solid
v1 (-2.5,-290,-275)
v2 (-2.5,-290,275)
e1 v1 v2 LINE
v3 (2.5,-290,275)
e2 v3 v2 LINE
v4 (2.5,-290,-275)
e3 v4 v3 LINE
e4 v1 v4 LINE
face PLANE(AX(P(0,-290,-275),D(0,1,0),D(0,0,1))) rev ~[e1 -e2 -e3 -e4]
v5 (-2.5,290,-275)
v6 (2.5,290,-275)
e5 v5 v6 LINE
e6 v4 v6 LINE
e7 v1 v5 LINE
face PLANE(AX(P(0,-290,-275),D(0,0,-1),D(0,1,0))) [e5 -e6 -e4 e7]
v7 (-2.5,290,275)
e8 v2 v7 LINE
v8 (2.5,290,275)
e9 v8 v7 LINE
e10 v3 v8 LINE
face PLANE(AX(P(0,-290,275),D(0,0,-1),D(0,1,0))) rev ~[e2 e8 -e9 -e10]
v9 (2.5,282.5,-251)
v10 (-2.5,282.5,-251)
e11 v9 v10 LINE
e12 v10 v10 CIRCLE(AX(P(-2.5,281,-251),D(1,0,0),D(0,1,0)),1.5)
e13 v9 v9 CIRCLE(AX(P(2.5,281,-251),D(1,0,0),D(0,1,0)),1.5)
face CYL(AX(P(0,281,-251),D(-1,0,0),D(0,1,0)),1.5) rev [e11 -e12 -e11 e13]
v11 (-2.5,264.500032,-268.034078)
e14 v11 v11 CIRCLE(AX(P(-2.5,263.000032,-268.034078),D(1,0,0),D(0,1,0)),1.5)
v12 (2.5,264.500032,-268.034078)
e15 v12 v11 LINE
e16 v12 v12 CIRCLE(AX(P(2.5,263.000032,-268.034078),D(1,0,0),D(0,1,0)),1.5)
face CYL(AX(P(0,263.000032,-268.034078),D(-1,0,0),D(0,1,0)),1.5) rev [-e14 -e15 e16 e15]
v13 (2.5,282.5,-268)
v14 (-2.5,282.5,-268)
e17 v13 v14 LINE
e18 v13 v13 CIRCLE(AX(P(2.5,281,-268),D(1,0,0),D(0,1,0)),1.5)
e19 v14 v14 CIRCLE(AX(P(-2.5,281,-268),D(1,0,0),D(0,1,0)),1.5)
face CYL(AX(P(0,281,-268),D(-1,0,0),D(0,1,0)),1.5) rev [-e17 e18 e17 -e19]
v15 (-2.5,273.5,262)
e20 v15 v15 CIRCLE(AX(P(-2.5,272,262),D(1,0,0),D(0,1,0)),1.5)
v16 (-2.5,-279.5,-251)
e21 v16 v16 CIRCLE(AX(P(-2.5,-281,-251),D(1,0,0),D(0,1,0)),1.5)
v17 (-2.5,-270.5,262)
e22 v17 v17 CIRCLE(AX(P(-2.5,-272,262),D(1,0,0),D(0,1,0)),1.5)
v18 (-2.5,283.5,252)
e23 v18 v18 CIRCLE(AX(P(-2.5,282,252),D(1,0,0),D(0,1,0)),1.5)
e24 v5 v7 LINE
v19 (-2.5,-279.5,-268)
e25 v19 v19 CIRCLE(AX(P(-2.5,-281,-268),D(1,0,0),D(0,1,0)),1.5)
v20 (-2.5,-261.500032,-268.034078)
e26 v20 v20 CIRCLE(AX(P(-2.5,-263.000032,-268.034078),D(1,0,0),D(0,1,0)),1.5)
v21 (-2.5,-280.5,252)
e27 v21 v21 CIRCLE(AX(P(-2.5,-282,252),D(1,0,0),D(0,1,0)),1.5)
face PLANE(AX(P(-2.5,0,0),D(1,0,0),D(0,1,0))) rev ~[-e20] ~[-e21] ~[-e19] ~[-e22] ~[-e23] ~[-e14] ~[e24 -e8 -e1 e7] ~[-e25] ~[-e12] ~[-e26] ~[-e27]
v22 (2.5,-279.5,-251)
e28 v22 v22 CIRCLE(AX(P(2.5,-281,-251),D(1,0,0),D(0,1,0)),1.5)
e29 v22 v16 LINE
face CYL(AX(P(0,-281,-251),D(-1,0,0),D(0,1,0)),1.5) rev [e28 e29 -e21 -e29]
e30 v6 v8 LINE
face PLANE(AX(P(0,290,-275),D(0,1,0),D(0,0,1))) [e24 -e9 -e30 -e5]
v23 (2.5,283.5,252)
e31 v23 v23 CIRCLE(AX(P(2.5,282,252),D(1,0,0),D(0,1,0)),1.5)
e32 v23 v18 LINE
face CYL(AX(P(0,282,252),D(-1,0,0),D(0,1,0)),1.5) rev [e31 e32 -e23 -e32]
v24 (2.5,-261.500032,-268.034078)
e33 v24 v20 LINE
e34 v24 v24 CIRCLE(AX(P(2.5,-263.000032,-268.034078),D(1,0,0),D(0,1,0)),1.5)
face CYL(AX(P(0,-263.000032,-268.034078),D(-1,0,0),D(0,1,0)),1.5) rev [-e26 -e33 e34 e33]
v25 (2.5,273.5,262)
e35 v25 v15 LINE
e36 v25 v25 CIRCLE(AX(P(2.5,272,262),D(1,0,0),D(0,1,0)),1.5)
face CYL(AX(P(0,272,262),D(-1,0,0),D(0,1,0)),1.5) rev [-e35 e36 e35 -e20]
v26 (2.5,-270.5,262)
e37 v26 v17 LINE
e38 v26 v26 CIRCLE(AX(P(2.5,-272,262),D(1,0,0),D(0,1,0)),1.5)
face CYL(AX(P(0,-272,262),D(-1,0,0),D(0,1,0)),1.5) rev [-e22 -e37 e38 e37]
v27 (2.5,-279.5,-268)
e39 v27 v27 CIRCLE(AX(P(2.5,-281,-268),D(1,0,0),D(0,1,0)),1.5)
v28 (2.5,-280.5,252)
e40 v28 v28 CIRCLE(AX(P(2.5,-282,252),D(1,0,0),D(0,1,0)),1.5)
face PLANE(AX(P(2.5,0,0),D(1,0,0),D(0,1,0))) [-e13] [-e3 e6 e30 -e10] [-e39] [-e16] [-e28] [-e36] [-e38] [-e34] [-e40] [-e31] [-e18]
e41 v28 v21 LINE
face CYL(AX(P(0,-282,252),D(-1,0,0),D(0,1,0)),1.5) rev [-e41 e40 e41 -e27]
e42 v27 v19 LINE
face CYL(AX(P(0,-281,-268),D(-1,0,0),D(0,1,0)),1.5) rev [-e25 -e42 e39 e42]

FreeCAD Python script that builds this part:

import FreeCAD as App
import Part
import Sketcher

V = App.Vector


def add_polygon(sketch, points):
    """Adds a closed chain of lines whose ends are joined by coincident constraints."""
    first, n = sketch.GeometryCount, len(points)
    for a, b in zip(points, points[1:] + points[:1]):
        sketch.addGeometry(Part.LineSegment(App.Vector(*a, 0), App.Vector(*b, 0)), False)
    for i in range(n):
        sketch.addConstraint(Sketcher.Constraint("Coincident", first + i, 2, first + (i + 1) % n, 1))

doc = App.newDocument("Part")
body = doc.addObject("PartDesign::Body", "Body")

sketch1 = body.newObject("Sketcher::SketchObject", "Sketch")
sketch1.AttachmentSupport = (doc.getObject("YZ_Plane"), [""])
sketch1.MapMode = "FlatFace"
add_polygon(sketch1, [(-290, 275), (-290, -275), (290, -275), (290, 275)])
sketch1.addGeometry(Part.Circle(V(-281, -268, 0), V(0, 0, 1), 1.5), False)
sketch1.addGeometry(Part.Circle(V(-263, -268, 0), V(0, 0, 1), 1.5), False)
sketch1.addGeometry(Part.Circle(V(-281, -251, 0), V(0, 0, 1), 1.5), False)
sketch1.addGeometry(Part.Circle(V(263, -268, 0), V(0, 0, 1), 1.5), False)
sketch1.addGeometry(Part.Circle(V(281, -268, 0), V(0, 0, 1), 1.5), False)
sketch1.addGeometry(Part.Circle(V(281, -251, 0), V(0, 0, 1), 1.5), False)
sketch1.addGeometry(Part.Circle(V(-282, 252, 0), V(0, 0, 1), 1.5), False)
sketch1.addGeometry(Part.Circle(V(-272, 262, 0), V(0, 0, 1), 1.5), False)
sketch1.addGeometry(Part.Circle(V(282, 252, 0), V(0, 0, 1), 1.5), False)
sketch1.addGeometry(Part.Circle(V(272, 262, 0), V(0, 0, 1), 1.5), False)
sketch1.addConstraint([
    Sketcher.Constraint("Vertical", 0),
    Sketcher.Constraint("Horizontal", 1),
    Sketcher.Constraint("Vertical", 2),
    Sketcher.Constraint("Horizontal", 3),
    Sketcher.Constraint("Equal", 4, 5),
    Sketcher.Constraint("Equal", 5, 6),
    Sketcher.Constraint("Equal", 6, 7),
    Sketcher.Constraint("Equal", 7, 8),
    Sketcher.Constraint("Equal", 8, 9),
    Sketcher.Constraint("Equal", 9, 10),
    Sketcher.Constraint("Equal", 10, 11),
    Sketcher.Constraint("Equal", 11, 12),
    Sketcher.Constraint("Equal", 12, 13),
    Sketcher.Constraint("Symmetric", 0, 2, 2, 2, -1, 1),
    Sketcher.Constraint("Symmetric", 5, 3, 7, 3, -2),
    Sketcher.Constraint("Symmetric", 4, 3, 8, 3, -2),
    Sketcher.Constraint("Symmetric", 6, 3, 9, 3, -2),
    Sketcher.Constraint("Symmetric", 10, 3, 12, 3, -2),
    Sketcher.Constraint("Symmetric", 11, 3, 13, 3, -2),
    Sketcher.Constraint("Vertical", 4, 3, 6, 3),
    Sketcher.Constraint("Diameter", 4, 3.0),
    Sketcher.Constraint("DistanceX", 1, 1, 1, 2, 580.0),
    Sketcher.Constraint("DistanceY", 0, 2, 0, 1, 550.0),
    Sketcher.Constraint("DistanceX", 4, 3, -1, 1, 281.0),
    Sketcher.Constraint("DistanceY", 4, 3, -1, 1, 268.0),
    Sketcher.Constraint("DistanceY", 6, 3, -1, 1, 251.0),
    Sketcher.Constraint("DistanceX", 10, 3, -1, 1, 282.0),
    Sketcher.Constraint("DistanceY", -1, 1, 10, 3, 252.0),
    Sketcher.Constraint("DistanceX", 11, 3, -1, 1, 272.0),
    Sketcher.Constraint("DistanceY", -1, 1, 11, 3, 262.0),
    Sketcher.Constraint("DistanceX", 5, 3, -1, 1, 263.000032),
    Sketcher.Constraint("DistanceY", 5, 3, -1, 1, 268.034078),
])
pad1 = body.newObject("PartDesign::Pad", "Pad")
pad1.Profile = sketch1
pad1.Length = 5
pad1.Midplane = True

doc.recompute()
